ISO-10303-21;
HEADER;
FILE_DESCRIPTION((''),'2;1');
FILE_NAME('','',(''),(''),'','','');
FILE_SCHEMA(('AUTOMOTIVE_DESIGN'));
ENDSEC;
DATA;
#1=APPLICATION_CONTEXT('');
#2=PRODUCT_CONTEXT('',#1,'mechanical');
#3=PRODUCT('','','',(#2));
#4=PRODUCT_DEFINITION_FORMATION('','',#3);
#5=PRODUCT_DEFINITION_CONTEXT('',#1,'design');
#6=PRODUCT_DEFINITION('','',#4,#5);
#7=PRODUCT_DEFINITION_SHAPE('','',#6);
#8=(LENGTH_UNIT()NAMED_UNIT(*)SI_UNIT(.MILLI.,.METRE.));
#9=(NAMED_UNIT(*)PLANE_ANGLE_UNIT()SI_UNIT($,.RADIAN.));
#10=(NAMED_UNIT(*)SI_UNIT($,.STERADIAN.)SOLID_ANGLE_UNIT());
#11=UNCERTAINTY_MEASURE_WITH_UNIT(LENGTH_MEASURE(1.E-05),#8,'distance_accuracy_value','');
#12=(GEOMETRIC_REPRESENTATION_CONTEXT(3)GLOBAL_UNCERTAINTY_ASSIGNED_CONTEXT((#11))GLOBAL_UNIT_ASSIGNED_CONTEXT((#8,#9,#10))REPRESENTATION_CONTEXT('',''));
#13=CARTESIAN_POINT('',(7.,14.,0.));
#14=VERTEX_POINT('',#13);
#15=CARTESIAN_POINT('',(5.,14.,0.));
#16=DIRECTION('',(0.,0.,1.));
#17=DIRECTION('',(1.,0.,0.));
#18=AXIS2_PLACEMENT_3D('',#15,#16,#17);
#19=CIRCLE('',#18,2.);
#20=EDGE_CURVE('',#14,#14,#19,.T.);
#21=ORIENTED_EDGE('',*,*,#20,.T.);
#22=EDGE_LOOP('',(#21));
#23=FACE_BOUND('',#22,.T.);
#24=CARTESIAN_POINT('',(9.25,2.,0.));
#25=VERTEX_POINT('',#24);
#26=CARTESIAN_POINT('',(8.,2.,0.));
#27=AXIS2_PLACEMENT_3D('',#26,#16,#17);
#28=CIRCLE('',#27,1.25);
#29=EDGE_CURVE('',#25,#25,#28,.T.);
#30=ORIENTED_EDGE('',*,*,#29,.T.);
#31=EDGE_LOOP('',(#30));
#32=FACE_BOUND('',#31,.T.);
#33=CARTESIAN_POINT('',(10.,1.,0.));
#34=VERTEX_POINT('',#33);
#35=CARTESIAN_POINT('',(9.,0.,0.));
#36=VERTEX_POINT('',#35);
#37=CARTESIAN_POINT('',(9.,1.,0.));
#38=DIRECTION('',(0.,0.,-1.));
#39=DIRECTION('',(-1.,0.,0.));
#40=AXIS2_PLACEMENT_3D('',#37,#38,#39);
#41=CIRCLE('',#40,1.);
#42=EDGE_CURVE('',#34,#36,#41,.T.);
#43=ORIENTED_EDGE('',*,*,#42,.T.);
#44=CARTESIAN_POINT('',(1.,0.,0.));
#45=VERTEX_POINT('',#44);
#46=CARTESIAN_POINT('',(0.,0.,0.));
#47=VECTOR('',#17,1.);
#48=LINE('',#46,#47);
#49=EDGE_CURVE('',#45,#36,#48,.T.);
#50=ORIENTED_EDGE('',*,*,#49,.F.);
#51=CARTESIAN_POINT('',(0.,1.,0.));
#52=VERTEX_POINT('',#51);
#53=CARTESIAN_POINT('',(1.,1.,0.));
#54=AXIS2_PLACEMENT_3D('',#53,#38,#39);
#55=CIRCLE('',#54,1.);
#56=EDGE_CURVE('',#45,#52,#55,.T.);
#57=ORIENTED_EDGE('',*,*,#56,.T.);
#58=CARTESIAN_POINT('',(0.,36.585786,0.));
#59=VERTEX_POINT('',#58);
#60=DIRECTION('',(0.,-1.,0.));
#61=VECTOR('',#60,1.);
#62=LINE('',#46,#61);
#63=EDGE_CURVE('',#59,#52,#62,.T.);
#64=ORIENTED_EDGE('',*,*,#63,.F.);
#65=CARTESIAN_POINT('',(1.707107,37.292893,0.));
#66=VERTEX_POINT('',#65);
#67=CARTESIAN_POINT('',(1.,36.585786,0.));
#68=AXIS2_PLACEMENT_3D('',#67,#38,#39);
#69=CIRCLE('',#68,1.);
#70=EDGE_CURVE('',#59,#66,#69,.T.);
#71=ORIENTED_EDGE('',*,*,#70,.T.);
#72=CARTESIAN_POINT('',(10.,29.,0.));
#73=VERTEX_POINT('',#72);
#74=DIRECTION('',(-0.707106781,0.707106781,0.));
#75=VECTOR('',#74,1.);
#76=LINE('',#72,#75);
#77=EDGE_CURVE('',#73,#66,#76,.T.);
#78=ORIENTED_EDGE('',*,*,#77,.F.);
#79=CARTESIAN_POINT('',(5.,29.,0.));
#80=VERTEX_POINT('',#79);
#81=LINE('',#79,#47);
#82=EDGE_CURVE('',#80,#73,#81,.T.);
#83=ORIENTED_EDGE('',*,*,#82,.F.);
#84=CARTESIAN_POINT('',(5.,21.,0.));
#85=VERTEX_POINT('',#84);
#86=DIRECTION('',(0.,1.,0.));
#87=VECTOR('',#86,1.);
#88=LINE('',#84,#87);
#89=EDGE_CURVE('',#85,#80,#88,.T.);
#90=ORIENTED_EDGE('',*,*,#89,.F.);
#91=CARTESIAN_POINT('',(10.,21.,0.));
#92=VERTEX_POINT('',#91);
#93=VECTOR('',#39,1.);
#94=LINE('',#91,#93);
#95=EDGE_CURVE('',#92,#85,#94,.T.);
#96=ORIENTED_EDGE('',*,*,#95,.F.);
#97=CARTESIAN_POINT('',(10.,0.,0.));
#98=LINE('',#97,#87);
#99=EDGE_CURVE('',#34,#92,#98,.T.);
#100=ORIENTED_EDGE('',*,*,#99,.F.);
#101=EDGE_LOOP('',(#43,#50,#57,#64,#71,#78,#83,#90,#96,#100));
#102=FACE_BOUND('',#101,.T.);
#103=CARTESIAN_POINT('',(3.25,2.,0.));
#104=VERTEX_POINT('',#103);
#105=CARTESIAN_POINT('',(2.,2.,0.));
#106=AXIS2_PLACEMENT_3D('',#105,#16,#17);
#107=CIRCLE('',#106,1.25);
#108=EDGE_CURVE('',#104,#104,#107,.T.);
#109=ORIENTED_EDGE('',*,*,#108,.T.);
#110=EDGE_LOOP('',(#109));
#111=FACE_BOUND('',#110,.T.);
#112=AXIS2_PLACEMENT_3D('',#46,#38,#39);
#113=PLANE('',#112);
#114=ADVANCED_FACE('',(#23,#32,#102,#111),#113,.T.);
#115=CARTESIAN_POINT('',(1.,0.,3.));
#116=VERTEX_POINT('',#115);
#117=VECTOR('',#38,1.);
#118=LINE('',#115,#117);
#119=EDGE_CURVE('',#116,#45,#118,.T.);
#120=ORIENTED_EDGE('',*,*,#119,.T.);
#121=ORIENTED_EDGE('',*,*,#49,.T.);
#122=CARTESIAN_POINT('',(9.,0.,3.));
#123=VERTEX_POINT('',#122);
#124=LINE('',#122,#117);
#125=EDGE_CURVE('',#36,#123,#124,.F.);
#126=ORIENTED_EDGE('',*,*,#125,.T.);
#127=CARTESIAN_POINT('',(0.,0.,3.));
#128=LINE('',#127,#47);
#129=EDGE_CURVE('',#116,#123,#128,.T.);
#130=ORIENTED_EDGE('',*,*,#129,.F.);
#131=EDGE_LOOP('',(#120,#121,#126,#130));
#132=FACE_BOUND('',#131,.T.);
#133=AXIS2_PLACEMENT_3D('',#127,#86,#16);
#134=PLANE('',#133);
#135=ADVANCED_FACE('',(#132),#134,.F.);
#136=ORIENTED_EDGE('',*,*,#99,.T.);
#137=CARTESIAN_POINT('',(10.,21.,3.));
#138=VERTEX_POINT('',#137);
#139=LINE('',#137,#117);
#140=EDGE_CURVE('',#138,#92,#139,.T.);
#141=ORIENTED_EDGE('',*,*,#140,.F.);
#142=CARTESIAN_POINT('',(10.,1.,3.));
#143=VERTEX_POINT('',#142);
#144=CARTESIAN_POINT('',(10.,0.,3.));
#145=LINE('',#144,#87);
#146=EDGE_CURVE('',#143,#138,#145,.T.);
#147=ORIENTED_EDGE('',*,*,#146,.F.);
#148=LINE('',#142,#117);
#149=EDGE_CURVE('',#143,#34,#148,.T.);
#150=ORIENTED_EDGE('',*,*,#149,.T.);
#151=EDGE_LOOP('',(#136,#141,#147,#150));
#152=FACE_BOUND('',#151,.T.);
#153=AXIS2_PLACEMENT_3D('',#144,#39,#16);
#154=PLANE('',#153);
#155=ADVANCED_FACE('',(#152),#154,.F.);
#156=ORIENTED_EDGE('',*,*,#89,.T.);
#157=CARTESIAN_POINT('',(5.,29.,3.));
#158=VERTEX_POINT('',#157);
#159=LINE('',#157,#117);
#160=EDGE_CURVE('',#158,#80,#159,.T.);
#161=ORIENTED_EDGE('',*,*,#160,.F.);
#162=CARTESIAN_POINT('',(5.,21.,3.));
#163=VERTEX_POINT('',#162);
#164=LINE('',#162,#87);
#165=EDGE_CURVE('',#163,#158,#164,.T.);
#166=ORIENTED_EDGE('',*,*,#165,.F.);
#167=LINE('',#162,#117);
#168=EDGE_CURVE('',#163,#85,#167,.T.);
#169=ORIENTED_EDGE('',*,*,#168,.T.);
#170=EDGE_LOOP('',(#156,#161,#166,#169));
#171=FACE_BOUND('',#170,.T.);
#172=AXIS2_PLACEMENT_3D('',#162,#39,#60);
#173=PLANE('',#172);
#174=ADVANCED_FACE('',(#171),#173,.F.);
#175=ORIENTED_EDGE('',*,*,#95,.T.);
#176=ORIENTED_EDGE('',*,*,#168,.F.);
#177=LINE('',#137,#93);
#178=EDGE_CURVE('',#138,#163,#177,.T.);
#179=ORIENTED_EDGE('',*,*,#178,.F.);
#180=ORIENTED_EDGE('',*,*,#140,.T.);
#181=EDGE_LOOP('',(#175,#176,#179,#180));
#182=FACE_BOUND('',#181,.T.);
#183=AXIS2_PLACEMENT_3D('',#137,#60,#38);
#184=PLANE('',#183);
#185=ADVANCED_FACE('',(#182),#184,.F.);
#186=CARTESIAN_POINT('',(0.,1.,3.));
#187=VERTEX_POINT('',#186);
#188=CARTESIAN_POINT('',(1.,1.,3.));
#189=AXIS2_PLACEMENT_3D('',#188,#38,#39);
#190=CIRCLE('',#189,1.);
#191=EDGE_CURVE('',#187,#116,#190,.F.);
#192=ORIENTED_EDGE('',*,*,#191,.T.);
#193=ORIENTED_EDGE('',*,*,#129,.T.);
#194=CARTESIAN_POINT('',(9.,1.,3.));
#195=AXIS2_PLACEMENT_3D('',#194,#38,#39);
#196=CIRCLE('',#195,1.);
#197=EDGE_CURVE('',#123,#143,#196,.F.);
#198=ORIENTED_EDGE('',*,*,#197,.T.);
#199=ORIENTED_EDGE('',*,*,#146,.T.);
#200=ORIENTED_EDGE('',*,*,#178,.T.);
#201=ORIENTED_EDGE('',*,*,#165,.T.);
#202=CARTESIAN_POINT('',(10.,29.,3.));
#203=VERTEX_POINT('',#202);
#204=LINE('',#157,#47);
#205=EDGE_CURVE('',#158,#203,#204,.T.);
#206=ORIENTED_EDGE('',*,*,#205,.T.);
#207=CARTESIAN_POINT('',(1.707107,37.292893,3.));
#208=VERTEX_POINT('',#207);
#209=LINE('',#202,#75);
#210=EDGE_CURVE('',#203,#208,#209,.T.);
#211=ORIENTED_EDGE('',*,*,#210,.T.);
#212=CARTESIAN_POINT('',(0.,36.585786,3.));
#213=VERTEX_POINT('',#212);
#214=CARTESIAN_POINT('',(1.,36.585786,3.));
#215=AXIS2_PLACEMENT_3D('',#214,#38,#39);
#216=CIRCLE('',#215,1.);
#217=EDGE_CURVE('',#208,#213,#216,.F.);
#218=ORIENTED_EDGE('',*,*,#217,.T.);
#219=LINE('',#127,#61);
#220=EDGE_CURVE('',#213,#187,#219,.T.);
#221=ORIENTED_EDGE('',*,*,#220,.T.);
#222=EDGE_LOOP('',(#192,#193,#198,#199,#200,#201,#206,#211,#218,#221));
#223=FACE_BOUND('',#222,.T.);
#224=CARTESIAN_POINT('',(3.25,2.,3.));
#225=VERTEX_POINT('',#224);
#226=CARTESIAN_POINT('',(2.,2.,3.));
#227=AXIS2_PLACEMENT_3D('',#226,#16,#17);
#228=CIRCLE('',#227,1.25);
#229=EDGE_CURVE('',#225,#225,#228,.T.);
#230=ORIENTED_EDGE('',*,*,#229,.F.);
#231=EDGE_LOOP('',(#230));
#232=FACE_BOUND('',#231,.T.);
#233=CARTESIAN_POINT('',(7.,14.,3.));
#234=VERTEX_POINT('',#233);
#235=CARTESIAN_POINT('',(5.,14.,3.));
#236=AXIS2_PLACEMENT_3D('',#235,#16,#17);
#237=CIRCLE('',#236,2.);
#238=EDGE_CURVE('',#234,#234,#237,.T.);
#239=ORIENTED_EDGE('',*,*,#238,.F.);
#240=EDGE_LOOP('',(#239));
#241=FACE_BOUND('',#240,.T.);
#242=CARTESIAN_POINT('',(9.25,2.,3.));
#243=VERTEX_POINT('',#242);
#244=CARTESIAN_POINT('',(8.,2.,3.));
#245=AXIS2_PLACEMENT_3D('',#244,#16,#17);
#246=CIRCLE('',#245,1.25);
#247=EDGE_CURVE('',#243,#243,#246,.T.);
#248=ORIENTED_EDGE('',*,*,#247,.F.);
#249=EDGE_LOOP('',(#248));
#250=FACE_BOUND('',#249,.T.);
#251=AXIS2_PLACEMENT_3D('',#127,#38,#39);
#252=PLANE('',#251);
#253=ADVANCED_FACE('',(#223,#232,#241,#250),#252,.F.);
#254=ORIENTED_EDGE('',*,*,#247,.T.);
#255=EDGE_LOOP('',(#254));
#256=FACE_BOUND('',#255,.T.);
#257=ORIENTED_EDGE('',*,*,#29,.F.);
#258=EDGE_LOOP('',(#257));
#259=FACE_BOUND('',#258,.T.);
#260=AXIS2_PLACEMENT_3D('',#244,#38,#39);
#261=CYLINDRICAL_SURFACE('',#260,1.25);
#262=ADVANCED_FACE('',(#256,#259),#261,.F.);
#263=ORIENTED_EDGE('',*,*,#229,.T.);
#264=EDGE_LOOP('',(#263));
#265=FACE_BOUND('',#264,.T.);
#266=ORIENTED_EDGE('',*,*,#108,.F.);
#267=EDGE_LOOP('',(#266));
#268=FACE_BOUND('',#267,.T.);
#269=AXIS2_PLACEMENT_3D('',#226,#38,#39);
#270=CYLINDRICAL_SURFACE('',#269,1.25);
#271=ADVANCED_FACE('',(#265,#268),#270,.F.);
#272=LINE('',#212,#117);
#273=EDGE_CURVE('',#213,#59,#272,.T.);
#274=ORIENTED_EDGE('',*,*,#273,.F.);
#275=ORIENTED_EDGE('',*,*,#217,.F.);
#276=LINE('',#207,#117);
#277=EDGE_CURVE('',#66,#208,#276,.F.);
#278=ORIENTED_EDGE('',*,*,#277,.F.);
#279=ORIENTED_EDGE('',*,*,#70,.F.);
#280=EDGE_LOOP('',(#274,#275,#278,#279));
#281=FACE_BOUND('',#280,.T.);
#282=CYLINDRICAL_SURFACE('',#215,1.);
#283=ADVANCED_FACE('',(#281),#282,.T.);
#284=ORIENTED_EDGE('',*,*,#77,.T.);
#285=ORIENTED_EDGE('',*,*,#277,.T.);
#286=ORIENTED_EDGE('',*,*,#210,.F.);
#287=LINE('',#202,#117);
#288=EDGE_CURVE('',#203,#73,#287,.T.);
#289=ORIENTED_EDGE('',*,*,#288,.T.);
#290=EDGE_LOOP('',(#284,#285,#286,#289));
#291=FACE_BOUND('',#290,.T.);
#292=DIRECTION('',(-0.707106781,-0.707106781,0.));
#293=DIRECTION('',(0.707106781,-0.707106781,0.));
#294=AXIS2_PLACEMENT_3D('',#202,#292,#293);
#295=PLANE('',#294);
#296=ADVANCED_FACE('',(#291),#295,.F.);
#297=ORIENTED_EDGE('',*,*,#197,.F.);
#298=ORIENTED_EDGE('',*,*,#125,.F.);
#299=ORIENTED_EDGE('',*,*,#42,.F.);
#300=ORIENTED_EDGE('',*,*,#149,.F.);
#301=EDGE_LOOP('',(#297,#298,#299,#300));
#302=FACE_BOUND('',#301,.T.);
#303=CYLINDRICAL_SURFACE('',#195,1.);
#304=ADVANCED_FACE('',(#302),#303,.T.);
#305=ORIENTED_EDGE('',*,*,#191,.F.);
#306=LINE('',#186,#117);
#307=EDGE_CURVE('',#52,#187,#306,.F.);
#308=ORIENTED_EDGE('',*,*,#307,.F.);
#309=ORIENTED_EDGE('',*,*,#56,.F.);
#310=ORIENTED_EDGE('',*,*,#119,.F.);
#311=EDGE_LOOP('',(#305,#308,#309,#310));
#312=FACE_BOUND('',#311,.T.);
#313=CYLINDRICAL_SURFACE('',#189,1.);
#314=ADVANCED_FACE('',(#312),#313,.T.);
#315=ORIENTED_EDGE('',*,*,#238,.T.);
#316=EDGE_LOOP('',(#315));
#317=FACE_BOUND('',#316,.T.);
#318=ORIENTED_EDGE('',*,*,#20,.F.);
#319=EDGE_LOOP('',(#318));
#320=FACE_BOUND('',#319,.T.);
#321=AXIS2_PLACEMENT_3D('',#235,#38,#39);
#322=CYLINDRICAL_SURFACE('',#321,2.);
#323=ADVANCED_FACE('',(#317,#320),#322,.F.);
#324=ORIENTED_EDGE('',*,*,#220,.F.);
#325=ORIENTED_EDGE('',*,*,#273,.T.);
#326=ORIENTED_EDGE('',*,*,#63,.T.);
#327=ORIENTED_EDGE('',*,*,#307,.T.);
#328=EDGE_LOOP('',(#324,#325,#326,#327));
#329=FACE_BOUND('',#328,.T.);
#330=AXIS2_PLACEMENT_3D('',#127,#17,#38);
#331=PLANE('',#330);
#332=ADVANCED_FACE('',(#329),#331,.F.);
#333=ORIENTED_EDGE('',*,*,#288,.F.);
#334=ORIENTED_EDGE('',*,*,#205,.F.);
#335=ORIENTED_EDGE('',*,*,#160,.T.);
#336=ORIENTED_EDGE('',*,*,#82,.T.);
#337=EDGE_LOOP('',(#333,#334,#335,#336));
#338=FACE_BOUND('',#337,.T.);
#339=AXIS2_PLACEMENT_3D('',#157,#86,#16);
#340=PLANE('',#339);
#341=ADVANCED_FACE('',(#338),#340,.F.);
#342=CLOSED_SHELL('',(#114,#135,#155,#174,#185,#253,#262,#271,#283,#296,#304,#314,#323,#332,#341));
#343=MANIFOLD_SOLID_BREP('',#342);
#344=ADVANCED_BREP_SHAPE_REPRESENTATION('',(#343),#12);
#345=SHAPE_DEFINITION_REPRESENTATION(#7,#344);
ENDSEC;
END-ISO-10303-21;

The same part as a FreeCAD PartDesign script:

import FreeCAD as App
import Part
import Sketcher
from FreeCAD import Vector


def edges_at(feature, points):
    """Names of the edges that pass closest to the given points."""
    edges = feature.Shape.Edges
    near = lambda p: min(range(len(edges)), key=lambda i: edges[i].distToShape(Part.Vertex(*p))[0])
    return sorted({f"Edge{near(p) + 1}" for p in points})


def add_polygon(sketch, points):
    """Adds a closed chain of lines whose ends are joined by coincident constraints."""
    first, n = sketch.GeometryCount, len(points)
    for a, b in zip(points, points[1:] + points[:1]):
        sketch.addGeometry(Part.LineSegment(App.Vector(*a, 0), App.Vector(*b, 0)), False)
    for i in range(n):
        sketch.addConstraint(Sketcher.Constraint("Coincident", first + i, 2, first + (i + 1) % n, 1))

doc = App.newDocument("Part")
body = doc.addObject("PartDesign::Body", "Body")

# Sketch on XY plane
sketch1 = body.newObject("Sketcher::SketchObject", "Sketch")
sketch1.AttachmentSupport = (doc.getObject("XY_Plane"), [""])
sketch1.MapMode = "FlatFace"
add_polygon(sketch1, [(10, 0), (10, 21), (5, 21), (5, 29), (10, 29), (0, 39), (0, 0)])  # lines 0-6
sketch1.addGeometry(Part.Circle(Vector(2, 2, 0), Vector(0, 0, 1), 1.25), False)  # 7
sketch1.addGeometry(Part.Circle(Vector(8, 2, 0), Vector(0, 0, 1), 1.25), False)  # 8
sketch1.addGeometry(Part.Circle(Vector(5, 14, 0), Vector(0, 0, 1), 2), False)  # 9
sketch1.addConstraint([
    Sketcher.Constraint("Vertical", 0),
    Sketcher.Constraint("Horizontal", 1),
    Sketcher.Constraint("Vertical", 2),
    Sketcher.Constraint("Horizontal", 3),
    Sketcher.Constraint("Vertical", 5),
    Sketcher.Constraint("Horizontal", 6),
    Sketcher.Constraint("Coincident", 5, 2, -1, 1),
    Sketcher.Constraint("Equal", 7, 8),
    Sketcher.Constraint("Horizontal", 7, 3, 8, 3),
    Sketcher.Constraint("Vertical", 9, 3, 1, 2),
    Sketcher.Constraint("Vertical", 0, 2, 3, 2),
    Sketcher.Constraint("Diameter", 9, 4.0),
    Sketcher.Constraint("Diameter", 7, 2.5),
    Sketcher.Constraint("DistanceX", 1, 2, 1, 1, 5.0),
    Sketcher.Constraint("DistanceX", 6, 1, 6, 2, 10.0),
    Sketcher.Constraint("DistanceY", 0, 1, 0, 2, 21.0),
    Sketcher.Constraint("DistanceY", 2, 1, 2, 2, 8.0),
    Sketcher.Constraint("DistanceY", 5, 2, 5, 1, 39.0),
    Sketcher.Constraint("DistanceX", -1, 1, 7, 3, 2.0),
    Sketcher.Constraint("DistanceY", -1, 1, 7, 3, 2.0),
    Sketcher.Constraint("DistanceX", -1, 1, 8, 3, 8.0),
    Sketcher.Constraint("DistanceY", -1, 1, 9, 3, 14.0),
])
pad1 = body.newObject("PartDesign::Pad", "Pad")
pad1.Profile = sketch1
pad1.Length = 3
doc.recompute()

fillet = body.newObject("PartDesign::Fillet", "Fillet")
fillet.Base = (pad1, edges_at(pad1, [(0, 39, 1.5), (10, 0, 1.5), (0, 0, 1.5)]))
fillet.Radius = 1

doc.recompute()
